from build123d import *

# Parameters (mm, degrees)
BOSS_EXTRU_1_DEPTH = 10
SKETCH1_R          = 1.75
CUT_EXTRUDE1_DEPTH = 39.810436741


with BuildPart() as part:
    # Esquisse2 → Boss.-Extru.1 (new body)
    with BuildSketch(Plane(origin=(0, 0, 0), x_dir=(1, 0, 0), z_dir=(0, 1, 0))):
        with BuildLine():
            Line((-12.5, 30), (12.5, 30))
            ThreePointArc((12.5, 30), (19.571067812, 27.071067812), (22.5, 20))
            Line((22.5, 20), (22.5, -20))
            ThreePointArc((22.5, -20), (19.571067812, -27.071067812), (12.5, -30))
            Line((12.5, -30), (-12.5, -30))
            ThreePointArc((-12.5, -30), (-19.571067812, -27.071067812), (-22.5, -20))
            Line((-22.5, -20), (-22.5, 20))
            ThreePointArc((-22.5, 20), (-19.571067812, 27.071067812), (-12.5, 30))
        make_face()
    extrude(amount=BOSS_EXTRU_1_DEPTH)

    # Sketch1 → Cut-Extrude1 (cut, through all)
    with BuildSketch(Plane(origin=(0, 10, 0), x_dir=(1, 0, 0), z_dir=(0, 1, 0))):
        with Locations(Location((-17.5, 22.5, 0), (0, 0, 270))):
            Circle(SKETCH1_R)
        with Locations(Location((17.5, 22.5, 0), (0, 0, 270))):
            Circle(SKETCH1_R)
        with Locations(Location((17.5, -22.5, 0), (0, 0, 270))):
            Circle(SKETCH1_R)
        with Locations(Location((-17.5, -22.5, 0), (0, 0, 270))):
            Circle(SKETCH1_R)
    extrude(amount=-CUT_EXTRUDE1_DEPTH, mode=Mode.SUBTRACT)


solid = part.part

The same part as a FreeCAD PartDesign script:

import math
import FreeCAD as App
import Part
import Sketcher
from FreeCAD import Vector

doc = App.newDocument("Part")
body = doc.addObject("PartDesign::Body", "Body")

# Sketch on XZ plane
sketch1 = body.newObject("Sketcher::SketchObject", "Sketch")
sketch1.AttachmentSupport = (doc.getObject("XZ_Plane"), [""])
sketch1.MapMode = "FlatFace"
sketch1.addGeometry([
    Part.LineSegment(Vector(12.5, -30, 0), Vector(-12.5, -30, 0)),  # 0
    Part.ArcOfCircle(Part.Circle(Vector(-12.5, -20, 0), Vector(0, 0, 1), 10), math.radians(180), math.radians(270)),  # 1
    Part.LineSegment(Vector(-22.5, -20, 0), Vector(-22.5, 20, 0)),  # 2
    Part.ArcOfCircle(Part.Circle(Vector(-12.5, 20, 0), Vector(0, 0, 1), 10), math.radians(90), math.radians(180)),  # 3
    Part.LineSegment(Vector(-12.5, 30, 0), Vector(12.5, 30, 0)),  # 4
    Part.ArcOfCircle(Part.Circle(Vector(12.5, 20, 0), Vector(0, 0, 1), 10), math.radians(0), math.radians(90)),  # 5
    Part.LineSegment(Vector(22.5, 20, 0), Vector(22.5, -20, 0)),  # 6
    Part.ArcOfCircle(Part.Circle(Vector(12.5, -20, 0), Vector(0, 0, 1), 10), math.radians(-90), math.radians(0)),  # 7
], False)
sketch1.addConstraint([
    Sketcher.Constraint("Tangent", 0, 2, 1, 2),
    Sketcher.Constraint("Tangent", 1, 1, 2, 1),
    Sketcher.Constraint("Tangent", 2, 2, 3, 2),
    Sketcher.Constraint("Tangent", 3, 1, 4, 1),
    Sketcher.Constraint("Tangent", 4, 2, 5, 2),
    Sketcher.Constraint("Tangent", 5, 1, 6, 1),
    Sketcher.Constraint("Tangent", 6, 2, 7, 2),
    Sketcher.Constraint("Tangent", 7, 1, 0, 1),
    Sketcher.Constraint("Horizontal", 0),
    Sketcher.Constraint("Vertical", 2),
    Sketcher.Constraint("Horizontal", 4),
    Sketcher.Constraint("Vertical", 6),
    Sketcher.Constraint("Equal", 1, 3),
    Sketcher.Constraint("Equal", 3, 5),
    Sketcher.Constraint("Equal", 5, 7),
    Sketcher.Constraint("Symmetric", 1, 3, 5, 3, -1, 1),
    Sketcher.Constraint("Radius", 1, 10.0),
    Sketcher.Constraint("DistanceX", 0, 2, 0, 1, 25.0),
    Sketcher.Constraint("DistanceY", 2, 1, 2, 2, 40.0),
])
pad1 = body.newObject("PartDesign::Pad", "Pad")
pad1.Profile = sketch1
pad1.Length = 10
pad1.Reversed = True

# Sketch on XZ plane
sketch2 = body.newObject("Sketcher::SketchObject", "Sketch001")
sketch2.AttachmentSupport = (doc.getObject("XZ_Plane"), [""])
sketch2.MapMode = "FlatFace"
sketch2.AttachmentOffset = App.Placement(Vector(0, 0, -10), App.Rotation())
sketch2.addGeometry([
    Part.Circle(Vector(-17.5, -22.5, 0), Vector(0, 0, 1), 1.75),
    Part.Circle(Vector(17.5, -22.5, 0), Vector(0, 0, 1), 1.75),
    Part.Circle(Vector(17.5, 22.5, 0), Vector(0, 0, 1), 1.75),
    Part.Circle(Vector(-17.5, 22.5, 0), Vector(0, 0, 1), 1.75),
], False)
sketch2.addConstraint([
    Sketcher.Constraint("Equal", 0, 1),
    Sketcher.Constraint("Equal", 1, 2),
    Sketcher.Constraint("Equal", 2, 3),
    Sketcher.Constraint("Symmetric", 0, 3, 2, 3, -1, 1),
    Sketcher.Constraint("Symmetric", 1, 3, 3, 3, -1, 1),
    Sketcher.Constraint("Symmetric", 0, 3, 1, 3, -2),
    Sketcher.Constraint("Diameter", 0, 3.5),
    Sketcher.Constraint("DistanceX", 0, 3, 1, 3, 35.0),
    Sketcher.Constraint("DistanceY", 1, 3, 2, 3, 45.0),
])
pocket1 = body.newObject("PartDesign::Pocket", "Pocket")
pocket1.Profile = sketch2
pocket1.Type = "ThroughAll"
pocket1.Reversed = True

doc.recompute()
